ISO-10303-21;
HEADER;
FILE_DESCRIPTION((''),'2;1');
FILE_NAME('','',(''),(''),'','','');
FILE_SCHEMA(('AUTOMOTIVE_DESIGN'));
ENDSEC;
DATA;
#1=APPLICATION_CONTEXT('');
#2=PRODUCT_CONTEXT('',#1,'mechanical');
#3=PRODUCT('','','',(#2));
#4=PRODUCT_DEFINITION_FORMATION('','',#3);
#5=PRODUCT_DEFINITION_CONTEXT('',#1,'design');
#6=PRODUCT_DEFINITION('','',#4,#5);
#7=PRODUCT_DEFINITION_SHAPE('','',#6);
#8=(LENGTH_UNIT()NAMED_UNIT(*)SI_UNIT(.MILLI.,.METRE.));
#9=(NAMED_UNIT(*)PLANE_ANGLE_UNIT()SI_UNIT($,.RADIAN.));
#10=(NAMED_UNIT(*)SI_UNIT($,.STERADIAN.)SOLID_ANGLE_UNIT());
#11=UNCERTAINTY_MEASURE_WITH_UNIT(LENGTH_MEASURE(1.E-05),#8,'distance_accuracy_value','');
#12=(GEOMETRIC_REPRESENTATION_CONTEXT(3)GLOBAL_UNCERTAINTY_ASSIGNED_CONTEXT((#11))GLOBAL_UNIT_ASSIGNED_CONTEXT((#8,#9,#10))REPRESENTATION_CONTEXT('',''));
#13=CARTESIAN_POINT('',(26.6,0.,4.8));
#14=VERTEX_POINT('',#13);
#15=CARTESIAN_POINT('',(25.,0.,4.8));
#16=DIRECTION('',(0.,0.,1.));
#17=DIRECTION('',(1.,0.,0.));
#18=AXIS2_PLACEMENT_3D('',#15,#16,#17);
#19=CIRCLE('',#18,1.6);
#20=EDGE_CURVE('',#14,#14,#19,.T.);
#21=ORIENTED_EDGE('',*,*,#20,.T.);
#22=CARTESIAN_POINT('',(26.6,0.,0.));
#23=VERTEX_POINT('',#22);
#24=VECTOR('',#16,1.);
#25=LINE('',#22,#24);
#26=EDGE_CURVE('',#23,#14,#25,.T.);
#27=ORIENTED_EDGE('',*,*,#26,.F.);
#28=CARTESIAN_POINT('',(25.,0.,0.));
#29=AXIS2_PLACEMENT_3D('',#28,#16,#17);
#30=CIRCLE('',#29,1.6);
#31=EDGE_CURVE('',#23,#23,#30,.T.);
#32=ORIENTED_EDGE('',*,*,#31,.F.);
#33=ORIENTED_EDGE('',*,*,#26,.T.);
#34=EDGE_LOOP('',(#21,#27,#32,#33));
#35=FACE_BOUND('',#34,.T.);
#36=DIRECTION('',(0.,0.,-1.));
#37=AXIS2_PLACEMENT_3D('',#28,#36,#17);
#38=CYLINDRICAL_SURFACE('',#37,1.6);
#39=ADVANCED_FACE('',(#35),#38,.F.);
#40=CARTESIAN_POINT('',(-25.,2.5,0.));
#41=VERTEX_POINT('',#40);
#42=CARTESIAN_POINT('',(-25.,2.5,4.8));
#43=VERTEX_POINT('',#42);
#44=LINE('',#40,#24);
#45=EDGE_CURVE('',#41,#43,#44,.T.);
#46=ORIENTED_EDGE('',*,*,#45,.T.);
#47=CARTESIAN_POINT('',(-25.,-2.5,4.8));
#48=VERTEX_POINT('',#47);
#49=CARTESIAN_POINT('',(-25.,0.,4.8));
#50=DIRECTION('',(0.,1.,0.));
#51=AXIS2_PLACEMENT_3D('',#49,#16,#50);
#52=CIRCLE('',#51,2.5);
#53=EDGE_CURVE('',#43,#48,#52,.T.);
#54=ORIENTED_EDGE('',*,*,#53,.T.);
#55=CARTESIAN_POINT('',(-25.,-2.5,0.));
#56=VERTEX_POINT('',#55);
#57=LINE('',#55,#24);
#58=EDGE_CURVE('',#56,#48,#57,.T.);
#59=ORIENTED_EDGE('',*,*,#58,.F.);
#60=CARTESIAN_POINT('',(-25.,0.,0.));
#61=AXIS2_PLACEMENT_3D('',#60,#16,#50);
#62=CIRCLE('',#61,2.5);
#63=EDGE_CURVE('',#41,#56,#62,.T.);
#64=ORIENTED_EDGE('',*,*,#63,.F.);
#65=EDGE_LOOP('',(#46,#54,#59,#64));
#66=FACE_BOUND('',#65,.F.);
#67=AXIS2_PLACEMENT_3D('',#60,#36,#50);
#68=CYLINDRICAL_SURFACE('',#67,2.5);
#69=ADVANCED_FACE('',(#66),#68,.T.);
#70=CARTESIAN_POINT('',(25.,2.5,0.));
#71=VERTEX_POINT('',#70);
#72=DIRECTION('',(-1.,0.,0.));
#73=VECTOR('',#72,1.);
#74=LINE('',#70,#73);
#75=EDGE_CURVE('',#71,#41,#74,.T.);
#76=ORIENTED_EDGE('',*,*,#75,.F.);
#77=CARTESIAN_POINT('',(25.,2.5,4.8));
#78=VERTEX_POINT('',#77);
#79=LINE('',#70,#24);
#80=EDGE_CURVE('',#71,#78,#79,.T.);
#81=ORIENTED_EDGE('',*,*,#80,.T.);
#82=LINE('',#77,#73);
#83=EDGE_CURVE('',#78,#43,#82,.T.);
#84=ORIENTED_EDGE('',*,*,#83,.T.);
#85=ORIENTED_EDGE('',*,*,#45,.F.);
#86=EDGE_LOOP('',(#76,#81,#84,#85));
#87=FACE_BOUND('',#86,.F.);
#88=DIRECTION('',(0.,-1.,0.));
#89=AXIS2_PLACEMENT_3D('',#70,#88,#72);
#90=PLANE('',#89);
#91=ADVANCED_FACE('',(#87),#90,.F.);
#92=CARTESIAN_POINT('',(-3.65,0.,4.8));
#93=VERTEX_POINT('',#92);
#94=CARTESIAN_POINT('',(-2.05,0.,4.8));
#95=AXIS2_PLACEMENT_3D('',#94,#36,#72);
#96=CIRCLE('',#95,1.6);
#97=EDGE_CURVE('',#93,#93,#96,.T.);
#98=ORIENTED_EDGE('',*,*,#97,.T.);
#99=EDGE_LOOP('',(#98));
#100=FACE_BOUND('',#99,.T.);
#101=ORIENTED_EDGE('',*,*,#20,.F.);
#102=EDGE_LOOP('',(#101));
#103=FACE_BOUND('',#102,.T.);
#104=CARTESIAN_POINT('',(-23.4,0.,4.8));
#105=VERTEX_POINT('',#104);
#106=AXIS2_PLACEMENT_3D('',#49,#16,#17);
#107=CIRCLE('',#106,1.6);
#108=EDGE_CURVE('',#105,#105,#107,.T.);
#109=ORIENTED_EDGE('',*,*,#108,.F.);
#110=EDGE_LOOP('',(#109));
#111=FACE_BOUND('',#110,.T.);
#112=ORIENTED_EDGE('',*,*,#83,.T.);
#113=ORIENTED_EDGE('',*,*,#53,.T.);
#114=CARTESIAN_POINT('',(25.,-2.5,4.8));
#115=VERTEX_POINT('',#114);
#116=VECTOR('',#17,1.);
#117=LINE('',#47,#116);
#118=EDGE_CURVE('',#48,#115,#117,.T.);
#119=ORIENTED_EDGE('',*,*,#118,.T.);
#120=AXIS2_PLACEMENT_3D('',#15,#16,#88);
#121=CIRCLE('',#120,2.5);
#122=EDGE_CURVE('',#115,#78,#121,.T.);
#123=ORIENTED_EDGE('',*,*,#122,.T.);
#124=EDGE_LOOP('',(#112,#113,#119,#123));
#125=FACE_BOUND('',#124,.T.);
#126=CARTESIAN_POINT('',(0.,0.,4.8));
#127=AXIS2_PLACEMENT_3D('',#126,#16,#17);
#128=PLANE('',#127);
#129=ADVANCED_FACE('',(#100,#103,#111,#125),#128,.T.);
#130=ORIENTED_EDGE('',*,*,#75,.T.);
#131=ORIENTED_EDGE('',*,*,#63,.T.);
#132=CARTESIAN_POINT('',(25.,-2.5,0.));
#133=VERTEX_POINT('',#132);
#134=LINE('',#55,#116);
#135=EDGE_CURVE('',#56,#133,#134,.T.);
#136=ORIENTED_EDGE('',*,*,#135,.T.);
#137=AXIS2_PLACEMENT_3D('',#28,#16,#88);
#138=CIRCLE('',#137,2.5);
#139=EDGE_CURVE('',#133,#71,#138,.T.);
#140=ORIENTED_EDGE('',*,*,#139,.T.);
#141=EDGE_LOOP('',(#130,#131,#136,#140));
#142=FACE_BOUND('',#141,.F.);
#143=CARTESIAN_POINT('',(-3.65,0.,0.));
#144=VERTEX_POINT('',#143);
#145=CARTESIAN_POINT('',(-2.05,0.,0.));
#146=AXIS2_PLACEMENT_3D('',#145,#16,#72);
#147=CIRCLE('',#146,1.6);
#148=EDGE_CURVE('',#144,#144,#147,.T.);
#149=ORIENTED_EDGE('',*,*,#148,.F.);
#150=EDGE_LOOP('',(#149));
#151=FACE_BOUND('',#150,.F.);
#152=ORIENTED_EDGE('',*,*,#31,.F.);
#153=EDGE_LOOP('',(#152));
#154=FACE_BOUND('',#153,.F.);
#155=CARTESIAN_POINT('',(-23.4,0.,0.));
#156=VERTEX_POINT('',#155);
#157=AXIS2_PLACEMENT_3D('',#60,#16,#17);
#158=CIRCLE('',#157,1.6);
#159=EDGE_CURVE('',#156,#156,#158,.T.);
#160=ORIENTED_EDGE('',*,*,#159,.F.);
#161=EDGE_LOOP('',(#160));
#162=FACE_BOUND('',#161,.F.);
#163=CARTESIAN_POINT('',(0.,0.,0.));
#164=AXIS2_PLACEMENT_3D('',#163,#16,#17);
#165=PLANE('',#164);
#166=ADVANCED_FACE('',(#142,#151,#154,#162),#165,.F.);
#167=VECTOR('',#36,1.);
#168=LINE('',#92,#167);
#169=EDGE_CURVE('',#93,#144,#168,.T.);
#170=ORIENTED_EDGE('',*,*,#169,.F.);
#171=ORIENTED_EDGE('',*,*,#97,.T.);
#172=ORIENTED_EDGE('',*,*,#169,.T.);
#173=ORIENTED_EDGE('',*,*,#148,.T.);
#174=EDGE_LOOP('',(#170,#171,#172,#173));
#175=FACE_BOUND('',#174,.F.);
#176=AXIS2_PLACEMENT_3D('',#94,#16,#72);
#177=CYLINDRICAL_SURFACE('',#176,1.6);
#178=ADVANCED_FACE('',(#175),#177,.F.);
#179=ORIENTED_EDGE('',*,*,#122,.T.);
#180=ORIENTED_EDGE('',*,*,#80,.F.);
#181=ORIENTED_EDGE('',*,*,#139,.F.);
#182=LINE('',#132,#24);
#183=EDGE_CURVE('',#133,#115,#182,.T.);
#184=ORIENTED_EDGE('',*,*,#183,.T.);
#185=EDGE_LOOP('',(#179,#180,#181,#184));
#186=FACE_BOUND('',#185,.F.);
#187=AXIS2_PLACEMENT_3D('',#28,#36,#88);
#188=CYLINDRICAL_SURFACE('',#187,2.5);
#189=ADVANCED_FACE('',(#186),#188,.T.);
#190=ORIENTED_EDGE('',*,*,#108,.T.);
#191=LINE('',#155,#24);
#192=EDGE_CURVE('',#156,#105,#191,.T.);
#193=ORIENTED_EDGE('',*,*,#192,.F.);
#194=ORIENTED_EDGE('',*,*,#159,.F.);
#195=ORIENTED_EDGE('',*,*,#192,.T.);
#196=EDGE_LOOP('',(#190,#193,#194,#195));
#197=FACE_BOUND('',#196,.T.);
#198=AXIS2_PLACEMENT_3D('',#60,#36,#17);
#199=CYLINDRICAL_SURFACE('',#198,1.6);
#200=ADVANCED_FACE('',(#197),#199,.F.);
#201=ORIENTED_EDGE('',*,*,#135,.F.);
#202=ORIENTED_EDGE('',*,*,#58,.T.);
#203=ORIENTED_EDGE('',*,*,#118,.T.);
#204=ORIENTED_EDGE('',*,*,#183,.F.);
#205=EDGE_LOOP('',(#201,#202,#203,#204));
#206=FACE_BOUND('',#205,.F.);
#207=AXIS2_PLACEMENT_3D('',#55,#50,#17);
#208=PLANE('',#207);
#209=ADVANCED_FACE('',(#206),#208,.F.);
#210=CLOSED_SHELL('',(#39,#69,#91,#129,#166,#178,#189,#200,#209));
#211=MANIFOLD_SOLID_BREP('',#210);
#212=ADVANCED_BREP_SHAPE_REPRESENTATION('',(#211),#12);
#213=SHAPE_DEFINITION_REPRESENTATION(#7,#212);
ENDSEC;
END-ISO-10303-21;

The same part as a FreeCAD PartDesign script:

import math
import FreeCAD as App
import Part
import Sketcher

V = App.Vector

doc = App.newDocument("Part")
body = doc.addObject("PartDesign::Body", "Body")

# Sketch on XY plane
sketch1 = doc.addObject("Sketcher::SketchObject", "Sketch")
body.addObject(sketch1)
sketch1.AttachmentSupport = (doc.XY_Plane, [""])
sketch1.MapMode = "FlatFace"
sketch1.addGeometry([
    Part.ArcOfCircle(Part.Circle(V(-25, 0, 0), V(0, 0, 1), 2.5), math.radians(90), math.radians(270)),  # 0
    Part.LineSegment(V(-25, -2.5, 0), V(25, -2.5, 0)),  # 1
    Part.ArcOfCircle(Part.Circle(V(25, 0, 0), V(0, 0, 1), 2.5), math.radians(-90), math.radians(90)),  # 2
    Part.LineSegment(V(25, 2.5, 0), V(-25, 2.5, 0)),  # 3
    Part.Circle(V(-25, 0, 0), V(0, 0, 1), 1.6),  # 4
    Part.Circle(V(25, 0, 0), V(0, 0, 1), 1.6),  # 5
], False)
sketch1.addConstraint([
    Sketcher.Constraint("Tangent", 0, 2, 1, 1),
    Sketcher.Constraint("Tangent", 1, 2, 2, 1),
    Sketcher.Constraint("Tangent", 2, 2, 3, 1),
    Sketcher.Constraint("Tangent", 3, 2, 0, 1),
    Sketcher.Constraint("Horizontal", 1),
    Sketcher.Constraint("Horizontal", 3),
    Sketcher.Constraint("Coincident", 4, 3, 0, 3),
    Sketcher.Constraint("Coincident", 5, 3, 2, 3),
    Sketcher.Constraint("Equal", 4, 5),
    Sketcher.Constraint("Symmetric", 0, 3, 2, 3, -1, 1),
    Sketcher.Constraint("Diameter", 4, 3.2),
    Sketcher.Constraint("Radius", 0, 2.5),
    Sketcher.Constraint("DistanceX", 1, 1, 1, 2, 50.0),
])
pad1 = doc.addObject("PartDesign::Pad", "Pad")
body.addObject(pad1)
pad1.Profile = sketch1
pad1.Length = 4.8

# Sketch on XY plane
sketch2 = doc.addObject("Sketcher::SketchObject", "Sketch001")
body.addObject(sketch2)
sketch2.AttachmentSupport = (doc.XY_Plane, [""])
sketch2.MapMode = "FlatFace"
sketch2.AttachmentOffset = App.Placement(V(0, 0, 4.8), App.Rotation())
sketch2.addGeometry(Part.Circle(V(-2, 0, 0), V(0, 0, 1), 1.6), False)
sketch2.addConstraint([
    Sketcher.Constraint("PointOnObject", 0, 3, -1),
    Sketcher.Constraint("Diameter", 0, 3.2),
    Sketcher.Constraint("DistanceX", 0, 3, -1, 1, 2.05),
])
pocket1 = doc.addObject("PartDesign::Pocket", "Pocket")
body.addObject(pocket1)
pocket1.Profile = sketch2
pocket1.Length = 5

doc.recompute()
